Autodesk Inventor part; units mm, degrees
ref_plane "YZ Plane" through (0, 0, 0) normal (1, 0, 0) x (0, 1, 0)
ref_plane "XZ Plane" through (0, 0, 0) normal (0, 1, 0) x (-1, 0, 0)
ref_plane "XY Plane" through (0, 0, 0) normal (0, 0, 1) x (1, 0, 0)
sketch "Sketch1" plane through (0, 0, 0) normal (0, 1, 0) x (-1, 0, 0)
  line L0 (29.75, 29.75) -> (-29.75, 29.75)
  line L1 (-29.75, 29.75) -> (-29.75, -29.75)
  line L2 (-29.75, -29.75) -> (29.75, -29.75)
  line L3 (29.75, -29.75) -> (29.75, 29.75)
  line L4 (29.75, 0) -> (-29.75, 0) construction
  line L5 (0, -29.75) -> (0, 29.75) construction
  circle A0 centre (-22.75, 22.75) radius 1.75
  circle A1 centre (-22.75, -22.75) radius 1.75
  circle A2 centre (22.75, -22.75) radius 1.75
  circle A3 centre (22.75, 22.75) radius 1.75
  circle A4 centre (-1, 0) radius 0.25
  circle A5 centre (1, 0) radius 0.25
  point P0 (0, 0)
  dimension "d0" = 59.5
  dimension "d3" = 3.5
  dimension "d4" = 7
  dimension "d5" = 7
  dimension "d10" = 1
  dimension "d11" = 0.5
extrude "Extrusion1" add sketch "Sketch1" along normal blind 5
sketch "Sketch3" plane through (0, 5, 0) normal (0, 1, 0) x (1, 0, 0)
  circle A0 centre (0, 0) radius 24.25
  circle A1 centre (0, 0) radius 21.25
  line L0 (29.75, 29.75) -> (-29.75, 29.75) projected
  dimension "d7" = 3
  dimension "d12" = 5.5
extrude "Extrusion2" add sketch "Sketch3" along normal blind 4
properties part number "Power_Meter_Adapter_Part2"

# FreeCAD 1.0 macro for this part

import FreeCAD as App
import Part
import Sketcher
from FreeCAD import Vector

doc = App.newDocument("Part")
params = doc.addObject("Spreadsheet::Sheet", "Params")
for row, (alias, value) in enumerate([
    ("sketch1_diameter", "3.5 mm"),
    ("sketch1_diameter2", "0.5 mm"),
    ("sketch1_width", "59.5 mm"),
    ("pad1_length", "5 mm"),
    ("sketch2_diameter", "48.5 mm"),
    ("sketch2_diameter2", "42.5 mm"),
    ("pad2_length", "4 mm"),
], start=1):
    params.set(f"A{row}", alias)
    params.set(f"B{row}", "=" + value)
    params.setAlias(f"B{row}", alias)

body = doc.addObject("PartDesign::Body", "Body")

sketch1 = body.newObject("Sketcher::SketchObject", "Sketch")
sketch1.AttachmentSupport = (doc.getObject("XZ_Plane"), [""])
sketch1.MapMode = "FlatFace"
sketch1.addGeometry([
    Part.LineSegment(Vector(-29.75, -29.75, 0), Vector(-29.75, 29.75, 0)),
    Part.LineSegment(Vector(-29.75, 29.75, 0), Vector(29.75, 29.75, 0)),
    Part.LineSegment(Vector(29.75, 29.75, 0), Vector(29.75, -29.75, 0)),
    Part.LineSegment(Vector(29.75, -29.75, 0), Vector(-29.75, -29.75, 0)),
    Part.Circle(Vector(22.75, -22.75, 0), Vector(0, 0, 1), 1.75),
    Part.Circle(Vector(-22.75, -22.75, 0), Vector(0, 0, 1), 1.75),
    Part.Circle(Vector(1, 0, 0), Vector(0, 0, 1), 0.25),
    Part.Circle(Vector(22.75, 22.75, 0), Vector(0, 0, 1), 1.75),
    Part.Circle(Vector(-1, 0, 0), Vector(0, 0, 1), 0.25),
    Part.Circle(Vector(-22.75, 22.75, 0), Vector(0, 0, 1), 1.75),
], False)
sketch1.addConstraint([
    Sketcher.Constraint("Coincident", 0, 2, 1, 1),
    Sketcher.Constraint("Coincident", 1, 2, 2, 1),
    Sketcher.Constraint("Coincident", 2, 2, 3, 1),
    Sketcher.Constraint("Coincident", 3, 2, 0, 1),
    Sketcher.Constraint("Vertical", 0),
    Sketcher.Constraint("Horizontal", 1),
    Sketcher.Constraint("Vertical", 2),
    Sketcher.Constraint("Horizontal", 3),
    Sketcher.Constraint("Equal", 4, 5),
    Sketcher.Constraint("Equal", 5, 7),
    Sketcher.Constraint("Equal", 6, 8),
    Sketcher.Constraint("Equal", 7, 9),
    Sketcher.Constraint("Symmetric", 5, 3, 7, 3, -1, 1),
    Sketcher.Constraint("Symmetric", 6, 3, 8, 3, -1, 1),
    Sketcher.Constraint("Symmetric", 4, 3, 9, 3, -1, 1),
    Sketcher.Constraint("Symmetric", 0, 2, 2, 2, -1, 1),
    Sketcher.Constraint("Symmetric", 4, 3, 5, 3, -2),
    Sketcher.Constraint("PointOnObject", 6, 3, -1),
    Sketcher.Constraint("Equal", 3, 0),
    Sketcher.Constraint("Diameter", 4, 3.5),
    Sketcher.Constraint("Diameter", 6, 0.5),
    Sketcher.Constraint("DistanceX", 1, 1, 1, 2, 59.5),
    Sketcher.Constraint("DistanceX", -1, 1, 6, 3, 1.0),
    Sketcher.Constraint("DistanceX", 0, 2, 9, 3, 7.0),
    Sketcher.Constraint("DistanceY", 9, 3, 0, 2, 7.0),
])
sketch1.setExpression("Constraints[19]", "Params.sketch1_diameter")
sketch1.setExpression("Constraints[20]", "Params.sketch1_diameter2")
sketch1.setExpression("Constraints[21]", "Params.sketch1_width")
pad1 = body.newObject("PartDesign::Pad", "Pad")
pad1.Profile = sketch1
pad1.setExpression("Length", "Params.pad1_length")
pad1.Reversed = True

sketch2 = body.newObject("Sketcher::SketchObject", "Sketch001")
sketch2.AttachmentSupport = (doc.getObject("XZ_Plane"), [""])
sketch2.MapMode = "FlatFace"
sketch2.AttachmentOffset = App.Placement(Vector(0, 0, -5), App.Rotation())
sketch2.addGeometry([
    Part.Circle(Vector(0, 0, 0), Vector(0, 0, 1), 24.25),
    Part.Circle(Vector(0, 0, 0), Vector(0, 0, 1), 21.25),
], False)
sketch2.addConstraint([
    Sketcher.Constraint("Coincident", 0, 3, -1, 1),
    Sketcher.Constraint("Coincident", 1, 3, -1, 1),
    Sketcher.Constraint("Diameter", 0, 48.5),
    Sketcher.Constraint("Diameter", 1, 42.5),
])
sketch2.setExpression("Constraints[2]", "Params.sketch2_diameter")
sketch2.setExpression("Constraints[3]", "Params.sketch2_diameter2")
pad2 = body.newObject("PartDesign::Pad", "Pad001")
pad2.Profile = sketch2
pad2.setExpression("Length", "Params.pad2_length")
pad2.Reversed = True

doc.recompute()
